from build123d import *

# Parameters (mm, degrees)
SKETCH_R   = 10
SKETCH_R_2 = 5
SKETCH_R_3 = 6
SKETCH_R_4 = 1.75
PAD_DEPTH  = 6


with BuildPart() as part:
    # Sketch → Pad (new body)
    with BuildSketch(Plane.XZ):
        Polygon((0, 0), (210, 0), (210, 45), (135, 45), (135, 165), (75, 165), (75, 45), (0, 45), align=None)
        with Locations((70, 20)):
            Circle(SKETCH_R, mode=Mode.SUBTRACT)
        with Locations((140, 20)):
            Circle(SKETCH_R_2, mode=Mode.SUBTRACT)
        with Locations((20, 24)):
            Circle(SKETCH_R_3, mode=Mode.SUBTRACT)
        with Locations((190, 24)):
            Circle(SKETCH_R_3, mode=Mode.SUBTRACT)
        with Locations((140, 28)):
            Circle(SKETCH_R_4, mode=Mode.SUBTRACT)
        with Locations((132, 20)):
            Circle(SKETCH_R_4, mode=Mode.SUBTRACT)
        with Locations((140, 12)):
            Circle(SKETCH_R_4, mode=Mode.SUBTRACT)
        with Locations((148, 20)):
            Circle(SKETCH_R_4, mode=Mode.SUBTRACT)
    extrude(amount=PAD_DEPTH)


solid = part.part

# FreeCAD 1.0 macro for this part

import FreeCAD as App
import Part
import Sketcher

doc = App.newDocument("Part")
body = doc.addObject("PartDesign::Body", "Body")

sketch1 = doc.addObject("Sketcher::SketchObject", "Sketch")
body.addObject(sketch1)
sketch1.AttachmentSupport = (doc.XZ_Plane, [""])
sketch1.MapMode = "FlatFace"
sketch1.addGeometry([
    Part.LineSegment(App.Vector(0, 0, 0), App.Vector(210, 0, 0)),
    Part.LineSegment(App.Vector(210, 0, 0), App.Vector(210, 45, 0)),
    Part.LineSegment(App.Vector(210, 45, 0), App.Vector(135, 45, 0)),
    Part.LineSegment(App.Vector(135, 45, 0), App.Vector(135, 165, 0)),
    Part.LineSegment(App.Vector(135, 165, 0), App.Vector(75, 165, 0)),
    Part.LineSegment(App.Vector(75, 165, 0), App.Vector(75, 45, 0)),
    Part.LineSegment(App.Vector(75, 45, 0), App.Vector(0, 45, 0)),
    Part.LineSegment(App.Vector(0, 45, 0), App.Vector(0, 0, 0)),
    Part.Circle(App.Vector(140, 12, 0), App.Vector(0, 0, 1), 1.8),
    Part.Circle(App.Vector(20, 24, 0), App.Vector(0, 0, 1), 6),
    Part.Circle(App.Vector(70, 20, 0), App.Vector(0, 0, 1), 10),
    Part.Circle(App.Vector(132, 20, 0), App.Vector(0, 0, 1), 1.8),
    Part.Circle(App.Vector(140, 20, 0), App.Vector(0, 0, 1), 5),
    Part.Circle(App.Vector(148, 20, 0), App.Vector(0, 0, 1), 1.8),
    Part.Circle(App.Vector(190, 24, 0), App.Vector(0, 0, 1), 6),
    Part.Circle(App.Vector(140, 28, 0), App.Vector(0, 0, 1), 1.8),
], False)
sketch1.addConstraint([
    Sketcher.Constraint("Coincident", 0, 2, 1, 1),
    Sketcher.Constraint("Coincident", 1, 2, 2, 1),
    Sketcher.Constraint("Coincident", 2, 2, 3, 1),
    Sketcher.Constraint("Coincident", 3, 2, 4, 1),
    Sketcher.Constraint("Coincident", 4, 2, 5, 1),
    Sketcher.Constraint("Coincident", 5, 2, 6, 1),
    Sketcher.Constraint("Coincident", 6, 2, 7, 1),
    Sketcher.Constraint("Coincident", 7, 2, 0, 1),
    Sketcher.Constraint("Horizontal", 0),
    Sketcher.Constraint("Vertical", 1),
    Sketcher.Constraint("Horizontal", 2),
    Sketcher.Constraint("Vertical", 3),
    Sketcher.Constraint("Horizontal", 4),
    Sketcher.Constraint("Vertical", 5),
    Sketcher.Constraint("Horizontal", 6),
    Sketcher.Constraint("Vertical", 7),
    Sketcher.Constraint("Coincident", 7, 2, -1, 1),
    Sketcher.Constraint("Equal", 8, 11),
    Sketcher.Constraint("Equal", 11, 13),
    Sketcher.Constraint("Equal", 9, 14),
    Sketcher.Constraint("Equal", 13, 15),
    Sketcher.Constraint("Horizontal", 10, 3, 11, 3),
    Sketcher.Constraint("Horizontal", 11, 3, 12, 3),
    Sketcher.Constraint("Horizontal", 12, 3, 13, 3),
    Sketcher.Constraint("Horizontal", 9, 3, 14, 3),
    Sketcher.Constraint("Horizontal", 2, 2, 5, 2),
    Sketcher.Constraint("Vertical", 8, 3, 12, 3),
    Sketcher.Constraint("Vertical", 12, 3, 15, 3),
    Sketcher.Constraint("Equal", 2, 6),
    Sketcher.Constraint("Diameter", 9, 12.0),
    Sketcher.Constraint("Diameter", 10, 20.0),
    Sketcher.Constraint("Diameter", 12, 10.0),
    Sketcher.Constraint("Diameter", 8, 3.5),
    Sketcher.Constraint("DistanceX", 0, 1, 0, 2, 210.0),
    Sketcher.Constraint("DistanceX", 2, 2, 2, 1, 75.0),
    Sketcher.Constraint("DistanceY", 1, 1, 1, 2, 45.0),
    Sketcher.Constraint("DistanceY", 3, 1, 3, 2, 120.0),
    Sketcher.Constraint("DistanceX", -1, 1, 8, 3, 140.0),
    Sketcher.Constraint("DistanceY", -1, 1, 8, 3, 12.0),
    Sketcher.Constraint("DistanceX", -1, 1, 9, 3, 20.0),
    Sketcher.Constraint("DistanceY", -1, 1, 9, 3, 24.0),
    Sketcher.Constraint("DistanceX", -1, 1, 10, 3, 70.0),
    Sketcher.Constraint("DistanceY", -1, 1, 10, 3, 20.0),
    Sketcher.Constraint("DistanceX", -1, 1, 11, 3, 132.0),
    Sketcher.Constraint("DistanceX", -1, 1, 13, 3, 148.0),
    Sketcher.Constraint("DistanceX", -1, 1, 14, 3, 190.0),
    Sketcher.Constraint("DistanceY", -1, 1, 15, 3, 28.0),
])
pad1 = doc.addObject("PartDesign::Pad", "Pad")
body.addObject(pad1)
pad1.Profile = sketch1
pad1.Length = 6

doc.recompute()
